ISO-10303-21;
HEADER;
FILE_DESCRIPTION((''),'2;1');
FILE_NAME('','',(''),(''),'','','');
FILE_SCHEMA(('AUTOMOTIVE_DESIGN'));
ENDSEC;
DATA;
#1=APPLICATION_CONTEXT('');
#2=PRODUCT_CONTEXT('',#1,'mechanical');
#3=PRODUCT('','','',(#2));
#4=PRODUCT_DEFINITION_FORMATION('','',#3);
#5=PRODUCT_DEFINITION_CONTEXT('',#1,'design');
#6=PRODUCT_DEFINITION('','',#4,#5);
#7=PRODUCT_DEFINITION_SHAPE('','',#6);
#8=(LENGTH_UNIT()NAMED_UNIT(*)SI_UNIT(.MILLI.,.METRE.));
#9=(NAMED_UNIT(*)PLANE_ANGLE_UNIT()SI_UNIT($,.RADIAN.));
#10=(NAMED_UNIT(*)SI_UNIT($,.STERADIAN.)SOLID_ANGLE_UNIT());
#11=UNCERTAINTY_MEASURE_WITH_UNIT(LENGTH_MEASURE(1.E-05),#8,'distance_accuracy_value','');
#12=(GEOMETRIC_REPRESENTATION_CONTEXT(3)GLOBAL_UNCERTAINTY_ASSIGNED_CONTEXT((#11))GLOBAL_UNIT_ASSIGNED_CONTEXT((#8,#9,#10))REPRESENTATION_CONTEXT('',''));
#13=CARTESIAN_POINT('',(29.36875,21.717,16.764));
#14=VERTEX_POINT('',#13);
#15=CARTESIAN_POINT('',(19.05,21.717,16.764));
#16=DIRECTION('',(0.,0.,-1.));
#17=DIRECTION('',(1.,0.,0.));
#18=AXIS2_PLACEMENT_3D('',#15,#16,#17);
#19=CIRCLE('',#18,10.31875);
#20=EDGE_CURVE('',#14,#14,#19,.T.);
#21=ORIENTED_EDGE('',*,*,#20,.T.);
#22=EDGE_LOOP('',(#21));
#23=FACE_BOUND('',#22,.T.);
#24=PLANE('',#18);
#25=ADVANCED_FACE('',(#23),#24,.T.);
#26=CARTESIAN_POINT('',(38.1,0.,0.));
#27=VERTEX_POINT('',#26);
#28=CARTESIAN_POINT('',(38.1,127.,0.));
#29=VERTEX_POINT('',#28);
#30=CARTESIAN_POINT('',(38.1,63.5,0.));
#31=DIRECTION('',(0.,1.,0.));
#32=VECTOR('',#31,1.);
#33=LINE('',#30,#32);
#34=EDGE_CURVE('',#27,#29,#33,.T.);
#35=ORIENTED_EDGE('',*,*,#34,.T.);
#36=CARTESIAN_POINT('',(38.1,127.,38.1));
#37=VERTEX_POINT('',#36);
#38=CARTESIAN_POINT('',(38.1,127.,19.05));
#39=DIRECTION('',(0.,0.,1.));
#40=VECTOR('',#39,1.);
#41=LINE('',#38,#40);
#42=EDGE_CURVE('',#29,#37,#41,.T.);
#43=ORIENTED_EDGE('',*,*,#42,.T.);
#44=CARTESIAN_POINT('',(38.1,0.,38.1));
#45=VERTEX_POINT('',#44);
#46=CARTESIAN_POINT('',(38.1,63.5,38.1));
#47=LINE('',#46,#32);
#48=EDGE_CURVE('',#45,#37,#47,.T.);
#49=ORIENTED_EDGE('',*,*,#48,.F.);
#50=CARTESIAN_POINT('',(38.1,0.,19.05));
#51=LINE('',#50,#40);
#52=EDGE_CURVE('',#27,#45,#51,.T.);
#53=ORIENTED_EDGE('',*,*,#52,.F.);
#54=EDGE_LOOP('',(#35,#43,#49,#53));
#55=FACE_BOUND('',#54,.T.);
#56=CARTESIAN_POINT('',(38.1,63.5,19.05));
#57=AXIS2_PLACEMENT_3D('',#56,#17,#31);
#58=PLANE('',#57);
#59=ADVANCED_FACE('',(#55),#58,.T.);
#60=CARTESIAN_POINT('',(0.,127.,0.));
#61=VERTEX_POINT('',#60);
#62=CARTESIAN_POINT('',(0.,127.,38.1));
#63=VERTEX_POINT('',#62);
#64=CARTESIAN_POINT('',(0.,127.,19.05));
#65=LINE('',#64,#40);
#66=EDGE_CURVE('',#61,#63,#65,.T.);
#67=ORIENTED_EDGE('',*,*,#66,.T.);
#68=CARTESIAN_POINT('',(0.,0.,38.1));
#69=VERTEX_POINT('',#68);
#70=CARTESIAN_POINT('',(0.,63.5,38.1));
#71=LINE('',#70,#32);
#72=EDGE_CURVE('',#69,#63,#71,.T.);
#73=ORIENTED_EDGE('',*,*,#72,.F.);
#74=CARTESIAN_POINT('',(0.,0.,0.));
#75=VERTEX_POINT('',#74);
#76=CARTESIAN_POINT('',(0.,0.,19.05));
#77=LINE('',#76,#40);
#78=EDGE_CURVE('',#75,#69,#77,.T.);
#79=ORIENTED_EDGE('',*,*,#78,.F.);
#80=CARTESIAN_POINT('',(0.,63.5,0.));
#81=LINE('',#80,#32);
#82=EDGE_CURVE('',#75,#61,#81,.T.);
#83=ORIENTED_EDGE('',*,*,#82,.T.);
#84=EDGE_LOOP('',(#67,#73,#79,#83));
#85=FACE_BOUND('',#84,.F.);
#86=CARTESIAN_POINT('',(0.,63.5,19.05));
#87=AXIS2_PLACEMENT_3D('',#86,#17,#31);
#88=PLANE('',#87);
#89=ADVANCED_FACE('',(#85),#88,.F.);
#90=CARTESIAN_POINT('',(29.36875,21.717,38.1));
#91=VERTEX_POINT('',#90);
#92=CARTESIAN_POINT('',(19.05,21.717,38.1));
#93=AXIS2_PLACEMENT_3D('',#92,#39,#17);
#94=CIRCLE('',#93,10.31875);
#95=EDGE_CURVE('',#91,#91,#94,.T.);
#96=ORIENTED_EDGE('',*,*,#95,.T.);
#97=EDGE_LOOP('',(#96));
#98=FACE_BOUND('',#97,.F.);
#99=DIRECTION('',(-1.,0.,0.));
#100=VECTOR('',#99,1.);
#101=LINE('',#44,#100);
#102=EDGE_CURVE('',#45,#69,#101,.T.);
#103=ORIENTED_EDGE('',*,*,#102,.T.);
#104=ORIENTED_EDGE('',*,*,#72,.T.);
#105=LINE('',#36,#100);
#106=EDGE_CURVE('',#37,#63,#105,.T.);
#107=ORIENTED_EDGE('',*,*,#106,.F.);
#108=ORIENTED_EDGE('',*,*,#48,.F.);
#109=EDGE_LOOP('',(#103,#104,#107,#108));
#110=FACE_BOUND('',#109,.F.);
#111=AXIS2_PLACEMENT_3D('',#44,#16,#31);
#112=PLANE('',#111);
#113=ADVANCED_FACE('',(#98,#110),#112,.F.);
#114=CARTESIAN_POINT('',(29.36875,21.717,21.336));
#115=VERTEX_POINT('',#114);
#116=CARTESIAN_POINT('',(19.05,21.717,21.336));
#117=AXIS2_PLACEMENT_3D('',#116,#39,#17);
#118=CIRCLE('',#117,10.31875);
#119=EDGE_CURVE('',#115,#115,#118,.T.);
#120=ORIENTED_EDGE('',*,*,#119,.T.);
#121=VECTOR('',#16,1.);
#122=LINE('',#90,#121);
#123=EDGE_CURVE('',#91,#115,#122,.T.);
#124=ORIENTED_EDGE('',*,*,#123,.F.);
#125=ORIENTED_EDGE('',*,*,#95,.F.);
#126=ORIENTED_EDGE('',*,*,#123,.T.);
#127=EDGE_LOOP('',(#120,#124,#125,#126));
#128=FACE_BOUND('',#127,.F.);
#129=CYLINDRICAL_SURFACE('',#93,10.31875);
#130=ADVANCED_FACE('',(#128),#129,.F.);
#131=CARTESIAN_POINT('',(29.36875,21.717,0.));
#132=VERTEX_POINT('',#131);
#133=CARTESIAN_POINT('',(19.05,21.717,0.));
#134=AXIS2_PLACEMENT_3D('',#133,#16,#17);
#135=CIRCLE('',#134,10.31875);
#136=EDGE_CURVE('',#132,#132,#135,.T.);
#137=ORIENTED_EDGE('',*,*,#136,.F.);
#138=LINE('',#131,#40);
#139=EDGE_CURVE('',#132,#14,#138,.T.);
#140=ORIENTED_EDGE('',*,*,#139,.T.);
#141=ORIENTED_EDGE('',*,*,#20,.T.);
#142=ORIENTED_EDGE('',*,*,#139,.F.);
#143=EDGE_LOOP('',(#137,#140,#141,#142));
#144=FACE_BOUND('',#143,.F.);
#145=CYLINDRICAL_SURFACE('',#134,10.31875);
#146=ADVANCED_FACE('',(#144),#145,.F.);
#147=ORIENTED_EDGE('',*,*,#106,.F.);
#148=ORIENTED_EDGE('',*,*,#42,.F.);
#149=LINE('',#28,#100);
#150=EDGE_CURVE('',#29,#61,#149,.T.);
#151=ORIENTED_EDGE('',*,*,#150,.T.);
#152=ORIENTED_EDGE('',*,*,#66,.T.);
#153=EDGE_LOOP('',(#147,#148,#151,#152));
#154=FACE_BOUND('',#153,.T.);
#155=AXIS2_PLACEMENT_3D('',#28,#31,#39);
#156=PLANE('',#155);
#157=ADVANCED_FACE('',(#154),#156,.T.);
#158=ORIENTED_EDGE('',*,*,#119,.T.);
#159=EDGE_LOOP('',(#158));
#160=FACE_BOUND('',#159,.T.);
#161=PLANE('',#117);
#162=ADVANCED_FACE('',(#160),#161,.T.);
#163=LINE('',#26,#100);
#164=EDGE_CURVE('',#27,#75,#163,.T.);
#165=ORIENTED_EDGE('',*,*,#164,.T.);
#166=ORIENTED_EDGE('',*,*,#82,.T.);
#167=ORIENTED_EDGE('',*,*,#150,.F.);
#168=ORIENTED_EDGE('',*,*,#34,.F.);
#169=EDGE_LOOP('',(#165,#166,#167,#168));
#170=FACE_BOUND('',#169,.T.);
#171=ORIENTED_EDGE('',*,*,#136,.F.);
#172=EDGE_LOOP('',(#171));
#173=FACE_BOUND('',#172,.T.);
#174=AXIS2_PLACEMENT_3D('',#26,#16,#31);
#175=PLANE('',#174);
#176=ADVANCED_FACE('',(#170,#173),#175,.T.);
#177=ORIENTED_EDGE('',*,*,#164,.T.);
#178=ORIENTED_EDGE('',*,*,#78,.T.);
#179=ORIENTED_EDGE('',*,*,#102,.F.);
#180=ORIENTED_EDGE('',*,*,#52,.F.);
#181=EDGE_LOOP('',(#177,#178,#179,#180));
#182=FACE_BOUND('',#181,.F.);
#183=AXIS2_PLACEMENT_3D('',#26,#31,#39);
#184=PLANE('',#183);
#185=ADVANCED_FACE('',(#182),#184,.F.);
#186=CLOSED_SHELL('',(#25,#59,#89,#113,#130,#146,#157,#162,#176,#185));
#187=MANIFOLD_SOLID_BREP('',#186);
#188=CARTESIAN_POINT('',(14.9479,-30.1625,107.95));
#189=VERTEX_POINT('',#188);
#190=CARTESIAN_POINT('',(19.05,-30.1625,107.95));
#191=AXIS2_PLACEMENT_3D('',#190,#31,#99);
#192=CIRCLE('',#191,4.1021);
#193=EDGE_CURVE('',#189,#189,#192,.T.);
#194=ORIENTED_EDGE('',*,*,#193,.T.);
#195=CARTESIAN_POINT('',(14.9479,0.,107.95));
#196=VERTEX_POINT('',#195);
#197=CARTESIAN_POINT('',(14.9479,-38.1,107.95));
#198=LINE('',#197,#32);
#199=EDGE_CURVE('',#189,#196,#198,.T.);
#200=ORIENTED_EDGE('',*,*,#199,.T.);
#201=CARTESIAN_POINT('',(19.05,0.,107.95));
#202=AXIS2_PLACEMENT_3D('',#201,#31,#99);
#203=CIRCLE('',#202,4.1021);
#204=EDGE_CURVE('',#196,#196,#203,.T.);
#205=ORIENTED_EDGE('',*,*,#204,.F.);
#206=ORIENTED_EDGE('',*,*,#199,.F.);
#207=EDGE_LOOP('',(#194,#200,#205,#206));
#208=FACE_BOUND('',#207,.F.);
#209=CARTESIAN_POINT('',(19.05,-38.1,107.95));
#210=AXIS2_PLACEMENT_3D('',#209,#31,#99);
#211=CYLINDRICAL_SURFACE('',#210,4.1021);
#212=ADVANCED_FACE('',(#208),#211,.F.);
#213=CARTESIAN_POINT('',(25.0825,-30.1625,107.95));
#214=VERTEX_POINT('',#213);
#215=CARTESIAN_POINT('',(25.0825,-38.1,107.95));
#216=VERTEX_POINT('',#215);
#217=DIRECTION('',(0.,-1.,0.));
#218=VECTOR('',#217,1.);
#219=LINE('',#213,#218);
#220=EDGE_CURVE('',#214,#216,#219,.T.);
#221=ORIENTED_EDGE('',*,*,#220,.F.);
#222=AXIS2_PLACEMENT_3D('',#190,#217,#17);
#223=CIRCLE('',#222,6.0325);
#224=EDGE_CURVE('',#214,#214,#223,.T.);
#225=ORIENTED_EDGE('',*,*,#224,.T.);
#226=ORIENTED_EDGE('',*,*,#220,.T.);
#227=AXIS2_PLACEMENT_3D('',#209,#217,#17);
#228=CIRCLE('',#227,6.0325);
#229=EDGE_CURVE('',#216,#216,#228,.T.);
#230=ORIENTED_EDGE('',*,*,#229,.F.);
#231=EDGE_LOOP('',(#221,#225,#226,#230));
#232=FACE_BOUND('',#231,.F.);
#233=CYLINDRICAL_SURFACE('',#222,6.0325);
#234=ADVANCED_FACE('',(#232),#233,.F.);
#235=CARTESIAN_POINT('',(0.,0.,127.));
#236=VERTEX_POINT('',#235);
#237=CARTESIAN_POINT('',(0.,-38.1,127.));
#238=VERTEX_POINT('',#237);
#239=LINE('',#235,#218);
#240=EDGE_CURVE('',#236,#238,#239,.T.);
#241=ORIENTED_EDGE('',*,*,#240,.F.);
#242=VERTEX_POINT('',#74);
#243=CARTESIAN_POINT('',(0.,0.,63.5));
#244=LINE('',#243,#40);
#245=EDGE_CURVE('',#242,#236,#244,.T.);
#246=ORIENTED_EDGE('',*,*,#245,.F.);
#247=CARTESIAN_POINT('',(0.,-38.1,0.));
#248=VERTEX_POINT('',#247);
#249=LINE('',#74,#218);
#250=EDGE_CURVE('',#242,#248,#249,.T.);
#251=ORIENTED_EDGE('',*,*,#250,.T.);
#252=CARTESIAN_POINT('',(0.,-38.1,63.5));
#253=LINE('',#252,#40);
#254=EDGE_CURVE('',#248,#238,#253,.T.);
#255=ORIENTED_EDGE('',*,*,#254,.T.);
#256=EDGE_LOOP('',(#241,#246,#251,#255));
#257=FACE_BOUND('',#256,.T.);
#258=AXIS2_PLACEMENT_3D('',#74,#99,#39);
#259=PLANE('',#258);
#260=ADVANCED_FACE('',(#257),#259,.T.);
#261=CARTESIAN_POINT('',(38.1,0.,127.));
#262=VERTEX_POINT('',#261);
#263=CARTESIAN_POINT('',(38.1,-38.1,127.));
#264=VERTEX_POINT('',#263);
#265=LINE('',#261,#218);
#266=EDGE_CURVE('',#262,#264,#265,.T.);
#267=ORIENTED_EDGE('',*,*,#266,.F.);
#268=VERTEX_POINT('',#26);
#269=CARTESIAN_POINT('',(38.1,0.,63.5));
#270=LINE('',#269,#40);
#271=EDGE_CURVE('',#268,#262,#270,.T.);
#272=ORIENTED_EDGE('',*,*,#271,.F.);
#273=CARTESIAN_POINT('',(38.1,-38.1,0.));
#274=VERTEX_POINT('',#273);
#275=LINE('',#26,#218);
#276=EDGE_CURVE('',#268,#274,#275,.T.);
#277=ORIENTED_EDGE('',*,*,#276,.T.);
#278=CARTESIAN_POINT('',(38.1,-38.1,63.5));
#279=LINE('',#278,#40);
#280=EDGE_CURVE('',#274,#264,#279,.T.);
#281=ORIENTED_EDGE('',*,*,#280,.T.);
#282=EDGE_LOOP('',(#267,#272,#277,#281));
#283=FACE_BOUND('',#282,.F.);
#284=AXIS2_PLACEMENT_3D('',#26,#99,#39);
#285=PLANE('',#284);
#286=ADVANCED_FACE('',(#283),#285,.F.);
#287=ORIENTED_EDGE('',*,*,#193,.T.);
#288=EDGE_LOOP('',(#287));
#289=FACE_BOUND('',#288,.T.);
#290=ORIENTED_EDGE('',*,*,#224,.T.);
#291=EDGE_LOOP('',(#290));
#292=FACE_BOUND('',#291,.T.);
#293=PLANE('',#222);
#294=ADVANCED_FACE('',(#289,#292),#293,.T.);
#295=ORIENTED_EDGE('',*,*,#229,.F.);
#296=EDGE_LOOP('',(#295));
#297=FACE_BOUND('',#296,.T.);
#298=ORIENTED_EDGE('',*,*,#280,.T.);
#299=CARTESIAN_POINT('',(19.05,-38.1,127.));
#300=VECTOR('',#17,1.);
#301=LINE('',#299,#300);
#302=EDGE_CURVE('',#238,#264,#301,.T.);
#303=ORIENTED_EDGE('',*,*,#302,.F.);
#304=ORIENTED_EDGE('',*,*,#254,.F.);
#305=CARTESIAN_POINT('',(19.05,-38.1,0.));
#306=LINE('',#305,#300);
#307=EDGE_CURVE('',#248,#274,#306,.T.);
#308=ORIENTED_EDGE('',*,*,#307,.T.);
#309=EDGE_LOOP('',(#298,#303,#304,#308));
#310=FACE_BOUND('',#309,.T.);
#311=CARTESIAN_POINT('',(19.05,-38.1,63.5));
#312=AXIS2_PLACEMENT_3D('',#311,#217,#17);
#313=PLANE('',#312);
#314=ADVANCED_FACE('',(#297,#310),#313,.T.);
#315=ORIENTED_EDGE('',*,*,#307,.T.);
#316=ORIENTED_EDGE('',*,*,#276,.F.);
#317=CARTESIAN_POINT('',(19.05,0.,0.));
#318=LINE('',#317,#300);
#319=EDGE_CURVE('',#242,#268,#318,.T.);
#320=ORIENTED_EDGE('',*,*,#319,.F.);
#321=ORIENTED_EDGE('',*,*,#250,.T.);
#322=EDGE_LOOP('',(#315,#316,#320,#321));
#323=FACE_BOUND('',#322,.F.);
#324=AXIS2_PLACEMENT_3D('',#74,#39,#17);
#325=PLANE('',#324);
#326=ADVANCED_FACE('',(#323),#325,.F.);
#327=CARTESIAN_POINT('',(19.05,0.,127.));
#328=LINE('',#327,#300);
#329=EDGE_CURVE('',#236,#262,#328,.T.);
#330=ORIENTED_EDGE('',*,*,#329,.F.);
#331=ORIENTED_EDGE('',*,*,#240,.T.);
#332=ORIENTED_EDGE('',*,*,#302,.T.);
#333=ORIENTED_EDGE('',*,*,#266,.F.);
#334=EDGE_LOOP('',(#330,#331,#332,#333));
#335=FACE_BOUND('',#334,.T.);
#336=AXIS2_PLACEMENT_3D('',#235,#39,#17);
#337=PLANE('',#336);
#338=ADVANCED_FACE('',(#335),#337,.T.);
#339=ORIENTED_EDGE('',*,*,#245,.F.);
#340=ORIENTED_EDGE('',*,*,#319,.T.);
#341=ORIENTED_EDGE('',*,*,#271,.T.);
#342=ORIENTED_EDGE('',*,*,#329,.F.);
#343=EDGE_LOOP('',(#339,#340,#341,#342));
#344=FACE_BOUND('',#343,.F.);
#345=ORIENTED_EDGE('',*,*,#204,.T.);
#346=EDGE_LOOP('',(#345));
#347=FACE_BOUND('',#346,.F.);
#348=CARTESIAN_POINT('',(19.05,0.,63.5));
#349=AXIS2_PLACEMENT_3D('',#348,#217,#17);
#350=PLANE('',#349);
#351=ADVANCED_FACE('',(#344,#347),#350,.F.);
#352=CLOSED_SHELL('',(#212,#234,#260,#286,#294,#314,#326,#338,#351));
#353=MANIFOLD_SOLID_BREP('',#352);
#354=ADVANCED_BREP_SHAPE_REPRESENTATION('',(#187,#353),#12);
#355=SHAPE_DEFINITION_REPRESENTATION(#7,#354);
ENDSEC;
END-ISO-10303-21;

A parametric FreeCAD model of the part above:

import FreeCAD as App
import Part
import Sketcher

V = App.Vector
Q = App.Units.Quantity

doc = App.newDocument("Part")
body = doc.addObject("PartDesign::Body", "Body")

sketch1 = body.newObject("Sketcher::SketchObject", "Sketch")
sketch1.AttachmentSupport = (doc.getObject("XZ_Plane"), [""])
sketch1.MapMode = "FlatFace"
sketch1.addGeometry([
    Part.LineSegment(V(0, 127, 0), V(0, 0, 0)),
    Part.LineSegment(V(0, 0, 0), V(38.1, 0, 0)),
    Part.LineSegment(V(38.1, 0, 0), V(38.1, 127, 0)),
    Part.LineSegment(V(38.1, 127, 0), V(0, 127, 0)),
], False)
sketch1.addConstraint([
    Sketcher.Constraint("Coincident", 0, 2, 1, 1),
    Sketcher.Constraint("Coincident", 1, 2, 2, 1),
    Sketcher.Constraint("Coincident", 2, 2, 3, 1),
    Sketcher.Constraint("Coincident", 3, 2, 0, 1),
    Sketcher.Constraint("Vertical", 0),
    Sketcher.Constraint("Horizontal", 1),
    Sketcher.Constraint("Vertical", 2),
    Sketcher.Constraint("Horizontal", 3),
    Sketcher.Constraint("Coincident", 0, 2, -1, 1),
    Sketcher.Constraint("DistanceY", 0, 2, 0, 1, Q("5 in")),
    Sketcher.Constraint("DistanceX", 1, 1, 1, 2, Q("1.5 in")),
])
pad1 = body.newObject("PartDesign::Pad", "Pad")
pad1.Profile = sketch1
pad1.Length = Q("1.5 in")

sketch2 = body.newObject("Sketcher::SketchObject", "Sketch001")
sketch2.AttachmentSupport = (doc.getObject("XZ_Plane"), [""])
sketch2.MapMode = "FlatFace"
sketch2.AttachmentOffset = App.Placement(V(0, 0, 1.5 * 25.4), App.Rotation())
sketch2.addGeometry(Part.Circle(V(19.05, 107.95, 0), V(0, 0, 1), 4.1021), False)
sketch2.addConstraint([
    Sketcher.Constraint("Diameter", 0, Q("0.323 in")),
    Sketcher.Constraint("DistanceX", -1, 1, 0, 3, Q("0.75 in")),
    Sketcher.Constraint("DistanceY", -1, 1, 0, 3, Q("4.25 in")),
])
doc.recompute()
hole = body.newObject("PartDesign::Hole", "Hole")
hole.Profile = sketch2
hole.ThreadType = "None"
hole.Diameter = Q("0.323 in")
hole.DepthType = "ThroughAll"
hole.HoleCutType = "Counterbore"
hole.HoleCutDiameter = Q("0.475 in")
hole.HoleCutDepth = Q("0.3125 in")
body2 = doc.addObject("PartDesign::Body", "Body001")

sketch3 = body2.newObject("Sketcher::SketchObject", "Sketch002")
sketch3.AttachmentSupport = (doc.getObject("YZ_Plane001"), [""])
sketch3.MapMode = "FlatFace"
sketch3.AttachmentOffset = App.Placement(V(0, 0, 1.5 * 25.4), App.Rotation())
sketch3.addGeometry([
    Part.LineSegment(V(0, 38.1, 0), V(0, 0, 0)),
    Part.LineSegment(V(0, 0, 0), V(127, 0, 0)),
    Part.LineSegment(V(127, 0, 0), V(127, 38.1, 0)),
    Part.LineSegment(V(127, 38.1, 0), V(0, 38.1, 0)),
], False)
sketch3.addConstraint([
    Sketcher.Constraint("Coincident", 0, 2, 1, 1),
    Sketcher.Constraint("Coincident", 1, 2, 2, 1),
    Sketcher.Constraint("Coincident", 2, 2, 3, 1),
    Sketcher.Constraint("Coincident", 3, 2, 0, 1),
    Sketcher.Constraint("Vertical", 0),
    Sketcher.Constraint("Horizontal", 1),
    Sketcher.Constraint("Vertical", 2),
    Sketcher.Constraint("Horizontal", 3),
    Sketcher.Constraint("Coincident", 0, 2, -1, 1),
    Sketcher.Constraint("DistanceX", 1, 1, 1, 2, Q("5 in")),
    Sketcher.Constraint("DistanceY", 0, 2, 0, 1, Q("1.5 in")),
])
pad2 = body2.newObject("PartDesign::Pad", "Pad001")
pad2.Profile = sketch3
pad2.Length = Q("1.5 in")
pad2.Reversed = True

sketch4 = body2.newObject("Sketcher::SketchObject", "Sketch003")
sketch4.AttachmentSupport = (doc.getObject("XY_Plane001"), [""])
sketch4.MapMode = "FlatFace"
sketch4.AttachmentOffset = App.Placement(V(0, 0, 1.5 * 25.4), App.Rotation())
sketch4.addGeometry(Part.Circle(V(19.05, 21.717, 0), V(0, 0, 1), 10.31875), False)
sketch4.addConstraint([
    Sketcher.Constraint("Diameter", 0, Q("0.8125 in")),
    Sketcher.Constraint("DistanceX", -1, 1, 0, 3, Q("0.75 in")),
    Sketcher.Constraint("DistanceY", -1, 1, 0, 3, Q("0.855 in")),
])
pocket1 = body2.newObject("PartDesign::Pocket", "Pocket")
pocket1.Profile = sketch4
pocket1.Length = Q("0.66 in")

sketch5 = body2.newObject("Sketcher::SketchObject", "Sketch004")
sketch5.AttachmentSupport = (doc.getObject("XY_Plane001"), [""])
sketch5.MapMode = "FlatFace"
sketch5.addGeometry(Part.Circle(V(19.05, 21.717, 0), V(0, 0, 1), 10.31875), False)
sketch5.addConstraint([
    Sketcher.Constraint("Diameter", 0, Q("0.8125 in")),
    Sketcher.Constraint("DistanceX", -1, 1, 0, 3, Q("0.75 in")),
    Sketcher.Constraint("DistanceY", -1, 1, 0, 3, Q("0.855 in")),
])
pocket2 = body2.newObject("PartDesign::Pocket", "Pocket001")
pocket2.Profile = sketch5
pocket2.Length = Q("0.66 in")
pocket2.Reversed = True

doc.recompute()
